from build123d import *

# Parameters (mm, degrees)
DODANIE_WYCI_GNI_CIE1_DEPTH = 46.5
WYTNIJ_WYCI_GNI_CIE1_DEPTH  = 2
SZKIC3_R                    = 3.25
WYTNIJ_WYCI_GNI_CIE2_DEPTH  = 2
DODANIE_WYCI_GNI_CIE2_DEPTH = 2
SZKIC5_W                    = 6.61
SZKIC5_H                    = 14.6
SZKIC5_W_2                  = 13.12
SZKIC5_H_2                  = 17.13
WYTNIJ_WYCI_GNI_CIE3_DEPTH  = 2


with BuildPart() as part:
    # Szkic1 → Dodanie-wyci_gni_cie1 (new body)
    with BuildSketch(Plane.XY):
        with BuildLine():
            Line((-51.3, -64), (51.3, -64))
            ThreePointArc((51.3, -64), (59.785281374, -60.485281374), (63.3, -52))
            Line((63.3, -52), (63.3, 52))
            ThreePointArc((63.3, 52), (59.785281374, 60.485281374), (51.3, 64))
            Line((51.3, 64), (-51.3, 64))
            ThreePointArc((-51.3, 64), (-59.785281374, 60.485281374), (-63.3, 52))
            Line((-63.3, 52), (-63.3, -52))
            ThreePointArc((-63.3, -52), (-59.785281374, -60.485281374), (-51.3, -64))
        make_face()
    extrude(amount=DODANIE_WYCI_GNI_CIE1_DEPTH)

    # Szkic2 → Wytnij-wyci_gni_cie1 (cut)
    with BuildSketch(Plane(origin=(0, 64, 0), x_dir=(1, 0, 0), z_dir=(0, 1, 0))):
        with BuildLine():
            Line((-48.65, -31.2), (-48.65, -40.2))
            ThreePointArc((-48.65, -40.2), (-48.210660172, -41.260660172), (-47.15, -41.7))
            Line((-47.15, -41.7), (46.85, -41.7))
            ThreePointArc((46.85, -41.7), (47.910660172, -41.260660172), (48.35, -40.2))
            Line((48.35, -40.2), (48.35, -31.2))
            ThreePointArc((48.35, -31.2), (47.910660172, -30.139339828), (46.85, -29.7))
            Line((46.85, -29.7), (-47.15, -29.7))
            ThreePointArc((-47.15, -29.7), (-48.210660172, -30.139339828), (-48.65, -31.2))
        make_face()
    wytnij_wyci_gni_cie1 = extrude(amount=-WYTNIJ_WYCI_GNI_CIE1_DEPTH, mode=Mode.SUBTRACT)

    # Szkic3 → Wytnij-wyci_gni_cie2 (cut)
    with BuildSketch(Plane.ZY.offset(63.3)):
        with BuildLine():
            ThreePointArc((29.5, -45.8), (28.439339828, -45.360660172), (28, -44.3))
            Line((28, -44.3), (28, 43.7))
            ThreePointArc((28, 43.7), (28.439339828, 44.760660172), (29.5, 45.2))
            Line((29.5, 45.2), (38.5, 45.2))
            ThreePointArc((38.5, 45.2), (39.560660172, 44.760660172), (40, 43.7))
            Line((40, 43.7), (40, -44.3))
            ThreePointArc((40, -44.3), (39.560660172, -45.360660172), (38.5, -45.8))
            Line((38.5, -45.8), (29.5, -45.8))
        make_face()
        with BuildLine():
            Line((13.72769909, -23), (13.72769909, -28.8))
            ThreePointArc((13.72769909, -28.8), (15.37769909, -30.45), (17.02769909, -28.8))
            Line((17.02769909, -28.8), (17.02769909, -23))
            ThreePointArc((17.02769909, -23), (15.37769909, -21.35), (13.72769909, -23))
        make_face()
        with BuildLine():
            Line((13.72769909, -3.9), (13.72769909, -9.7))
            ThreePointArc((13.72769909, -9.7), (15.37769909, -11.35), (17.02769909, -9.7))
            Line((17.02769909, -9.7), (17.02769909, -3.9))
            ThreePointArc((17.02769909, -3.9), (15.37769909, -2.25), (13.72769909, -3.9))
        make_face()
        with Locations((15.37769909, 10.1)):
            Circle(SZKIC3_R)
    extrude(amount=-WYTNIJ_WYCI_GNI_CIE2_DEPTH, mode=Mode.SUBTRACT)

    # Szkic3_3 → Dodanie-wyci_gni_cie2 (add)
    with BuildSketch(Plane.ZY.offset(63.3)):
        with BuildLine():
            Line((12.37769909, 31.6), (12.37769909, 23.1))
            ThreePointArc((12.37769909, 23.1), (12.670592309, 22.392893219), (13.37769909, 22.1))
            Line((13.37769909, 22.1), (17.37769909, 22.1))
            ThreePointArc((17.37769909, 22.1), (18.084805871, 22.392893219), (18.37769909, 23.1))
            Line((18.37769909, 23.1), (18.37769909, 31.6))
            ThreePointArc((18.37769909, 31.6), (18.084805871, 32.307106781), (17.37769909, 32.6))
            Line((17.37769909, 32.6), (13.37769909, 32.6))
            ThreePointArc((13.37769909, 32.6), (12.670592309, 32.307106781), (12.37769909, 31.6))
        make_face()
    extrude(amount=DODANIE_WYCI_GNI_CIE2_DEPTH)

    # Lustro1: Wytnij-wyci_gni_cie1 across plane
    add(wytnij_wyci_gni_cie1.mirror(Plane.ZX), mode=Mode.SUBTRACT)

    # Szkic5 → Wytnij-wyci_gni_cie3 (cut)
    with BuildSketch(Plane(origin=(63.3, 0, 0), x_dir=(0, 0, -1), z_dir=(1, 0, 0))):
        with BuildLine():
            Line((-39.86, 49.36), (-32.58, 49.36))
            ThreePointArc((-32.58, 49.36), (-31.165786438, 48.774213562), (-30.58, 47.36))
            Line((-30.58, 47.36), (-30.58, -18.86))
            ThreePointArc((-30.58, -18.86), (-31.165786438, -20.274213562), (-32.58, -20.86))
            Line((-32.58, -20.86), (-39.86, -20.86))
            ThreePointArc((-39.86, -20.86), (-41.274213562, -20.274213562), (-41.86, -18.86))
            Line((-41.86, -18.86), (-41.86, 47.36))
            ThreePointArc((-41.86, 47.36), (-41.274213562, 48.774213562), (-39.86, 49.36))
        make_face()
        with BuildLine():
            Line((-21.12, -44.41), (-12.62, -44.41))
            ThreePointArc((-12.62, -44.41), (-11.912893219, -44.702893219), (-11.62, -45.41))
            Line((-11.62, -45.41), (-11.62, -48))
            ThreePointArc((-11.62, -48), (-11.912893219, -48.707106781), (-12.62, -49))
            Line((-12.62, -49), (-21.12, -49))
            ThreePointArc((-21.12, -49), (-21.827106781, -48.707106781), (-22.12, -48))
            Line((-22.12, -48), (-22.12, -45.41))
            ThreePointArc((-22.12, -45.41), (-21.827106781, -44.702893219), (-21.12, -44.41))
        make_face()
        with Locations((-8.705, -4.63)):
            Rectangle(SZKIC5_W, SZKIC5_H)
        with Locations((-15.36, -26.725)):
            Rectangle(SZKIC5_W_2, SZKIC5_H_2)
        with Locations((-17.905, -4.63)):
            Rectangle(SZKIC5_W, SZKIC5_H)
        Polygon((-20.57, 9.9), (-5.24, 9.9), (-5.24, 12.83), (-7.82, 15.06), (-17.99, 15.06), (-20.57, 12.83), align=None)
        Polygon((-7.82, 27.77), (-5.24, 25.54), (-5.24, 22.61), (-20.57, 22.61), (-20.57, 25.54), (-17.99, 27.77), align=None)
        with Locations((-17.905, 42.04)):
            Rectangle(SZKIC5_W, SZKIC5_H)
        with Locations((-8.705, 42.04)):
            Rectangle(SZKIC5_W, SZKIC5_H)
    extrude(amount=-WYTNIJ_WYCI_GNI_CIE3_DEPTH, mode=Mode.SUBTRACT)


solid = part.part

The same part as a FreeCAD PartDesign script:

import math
import FreeCAD as App
import Part
import Sketcher
from FreeCAD import Vector


def add_polygon(sketch, points):
    """Adds a closed chain of lines whose ends are joined by coincident constraints."""
    first, n = sketch.GeometryCount, len(points)
    for a, b in zip(points, points[1:] + points[:1]):
        sketch.addGeometry(Part.LineSegment(App.Vector(*a, 0), App.Vector(*b, 0)), False)
    for i in range(n):
        sketch.addConstraint(Sketcher.Constraint("Coincident", first + i, 2, first + (i + 1) % n, 1))

doc = App.newDocument("Part")
body = doc.addObject("PartDesign::Body", "Body")

sketch1 = body.newObject("Sketcher::SketchObject", "Sketch")
sketch1.AttachmentSupport = (doc.getObject("XY_Plane"), [""])
sketch1.MapMode = "FlatFace"
sketch1.addGeometry([
    Part.LineSegment(Vector(-51, -64, 0), Vector(51, -64, 0)),
    Part.ArcOfCircle(Part.Circle(Vector(51, -52, 0), Vector(0, 0, 1), 12), math.radians(-90), math.radians(0)),
    Part.LineSegment(Vector(63, -52, 0), Vector(63, 52, 0)),
    Part.ArcOfCircle(Part.Circle(Vector(51, 52, 0), Vector(0, 0, 1), 12), math.radians(0), math.radians(90)),
    Part.LineSegment(Vector(51, 64, 0), Vector(-51, 64, 0)),
    Part.ArcOfCircle(Part.Circle(Vector(-51, 52, 0), Vector(0, 0, 1), 12), math.radians(90), math.radians(180)),
    Part.LineSegment(Vector(-63, 52, 0), Vector(-63, -52, 0)),
    Part.ArcOfCircle(Part.Circle(Vector(-51, -52, 0), Vector(0, 0, 1), 12), math.radians(-180), math.radians(-90)),
], False)
sketch1.addConstraint([
    Sketcher.Constraint("Tangent", 0, 2, 1, 1),
    Sketcher.Constraint("Tangent", 1, 2, 2, 1),
    Sketcher.Constraint("Tangent", 2, 2, 3, 1),
    Sketcher.Constraint("Tangent", 3, 2, 4, 1),
    Sketcher.Constraint("Tangent", 4, 2, 5, 1),
    Sketcher.Constraint("Tangent", 5, 2, 6, 1),
    Sketcher.Constraint("Tangent", 6, 2, 7, 1),
    Sketcher.Constraint("Tangent", 7, 2, 0, 1),
    Sketcher.Constraint("Horizontal", 0),
    Sketcher.Constraint("Vertical", 2),
    Sketcher.Constraint("Horizontal", 4),
    Sketcher.Constraint("Vertical", 6),
    Sketcher.Constraint("Equal", 1, 3),
    Sketcher.Constraint("Equal", 3, 5),
    Sketcher.Constraint("Equal", 5, 7),
    Sketcher.Constraint("Symmetric", 1, 3, 5, 3, -1, 1),
    Sketcher.Constraint("Radius", 1, 12.0),
    Sketcher.Constraint("DistanceY", 2, 1, 2, 2, 104.0),
    Sketcher.Constraint("DistanceX", 0, 1, 0, 2, 102.6),
])
pad1 = body.newObject("PartDesign::Pad", "Pad")
pad1.Profile = sketch1
pad1.Length = 46.5

sketch2 = body.newObject("Sketcher::SketchObject", "Sketch001")
sketch2.AttachmentSupport = (doc.getObject("XZ_Plane"), [""])
sketch2.MapMode = "FlatFace"
sketch2.AttachmentOffset = App.Placement(Vector(0, 0, -64), App.Rotation())
sketch2.addGeometry([
    Part.LineSegment(Vector(-48.6, 31.2, 0), Vector(-48.6, 40.2, 0)),
    Part.ArcOfCircle(Part.Circle(Vector(-47.2, 40.2, 0), Vector(0, 0, 1), 1.5), math.radians(90), math.radians(180)),
    Part.LineSegment(Vector(-47.1, 41.7, 0), Vector(46.9, 41.7, 0)),
    Part.ArcOfCircle(Part.Circle(Vector(46.9, 40.2, 0), Vector(0, 0, 1), 1.5), math.radians(0), math.radians(90)),
    Part.LineSegment(Vector(48.4, 40.2, 0), Vector(48.4, 31.2, 0)),
    Part.ArcOfCircle(Part.Circle(Vector(46.9, 31.2, 0), Vector(0, 0, 1), 1.5), math.radians(-90), math.radians(0)),
    Part.LineSegment(Vector(46.9, 29.7, 0), Vector(-47.1, 29.7, 0)),
    Part.ArcOfCircle(Part.Circle(Vector(-47.2, 31.2, 0), Vector(0, 0, 1), 1.5), math.radians(180), math.radians(270)),
], False)
sketch2.addConstraint([
    Sketcher.Constraint("Tangent", 0, 2, 1, 2),
    Sketcher.Constraint("Tangent", 1, 1, 2, 1),
    Sketcher.Constraint("Tangent", 2, 2, 3, 2),
    Sketcher.Constraint("Tangent", 3, 1, 4, 1),
    Sketcher.Constraint("Tangent", 4, 2, 5, 2),
    Sketcher.Constraint("Tangent", 5, 1, 6, 1),
    Sketcher.Constraint("Tangent", 6, 2, 7, 2),
    Sketcher.Constraint("Tangent", 7, 1, 0, 1),
    Sketcher.Constraint("Vertical", 0),
    Sketcher.Constraint("Horizontal", 2),
    Sketcher.Constraint("Vertical", 4),
    Sketcher.Constraint("Horizontal", 6),
    Sketcher.Constraint("Equal", 1, 3),
    Sketcher.Constraint("Equal", 3, 5),
    Sketcher.Constraint("Equal", 5, 7),
    Sketcher.Constraint("Radius", 1, 1.5),
    Sketcher.Constraint("DistanceX", 2, 1, 2, 2, 94.0),
    Sketcher.Constraint("DistanceY", 0, 1, 0, 2, 9.0),
    Sketcher.Constraint("DistanceY", -1, 1, 1, 3, 40.2),
    Sketcher.Constraint("DistanceX", 1, 3, -1, 1, 47.15),
])
pocket1 = body.newObject("PartDesign::Pocket", "Pocket")
pocket1.Profile = sketch2
pocket1.Length = 2
pocket1.Reversed = True

sketch3 = body.newObject("Sketcher::SketchObject", "Sketch002")
sketch3.AttachmentSupport = (doc.getObject("YZ_Plane"), [""])
sketch3.MapMode = "FlatFace"
sketch3.AttachmentOffset = App.Placement(Vector(0, 0, -63.3), App.Rotation())
sketch3.addGeometry([
    Part.ArcOfCircle(Part.Circle(Vector(-44.3, 29.5, 0), Vector(0, 0, 1), 1.5), math.radians(180), math.radians(270)),
    Part.LineSegment(Vector(-45.8, 29.5, 0), Vector(-45.8, 38.5, 0)),
    Part.ArcOfCircle(Part.Circle(Vector(-44.3, 38.5, 0), Vector(0, 0, 1), 1.5), math.radians(90), math.radians(180)),
    Part.LineSegment(Vector(-44.3, 40, 0), Vector(43.7, 40, 0)),
    Part.ArcOfCircle(Part.Circle(Vector(43.7, 38.5, 0), Vector(0, 0, 1), 1.5), math.radians(0), math.radians(90)),
    Part.LineSegment(Vector(45.2, 38.5, 0), Vector(45.2, 29.5, 0)),
    Part.ArcOfCircle(Part.Circle(Vector(43.7, 29.5, 0), Vector(0, 0, 1), 1.5), math.radians(-90), math.radians(0)),
    Part.LineSegment(Vector(43.7, 28, 0), Vector(-44.3, 28, 0)),
    Part.LineSegment(Vector(-23, 13.7, 0), Vector(-28.8, 13.7, 0)),
    Part.ArcOfCircle(Part.Circle(Vector(-28.8, 15.4, 0), Vector(0, 0, 1), 1.6), math.radians(90), math.radians(270)),
    Part.LineSegment(Vector(-28.8, 17, 0), Vector(-23, 17, 0)),
    Part.ArcOfCircle(Part.Circle(Vector(-23, 15.4, 0), Vector(0, 0, 1), 1.6), math.radians(-90), math.radians(90)),
    Part.LineSegment(Vector(-3.9, 13.7, 0), Vector(-9.7, 13.7, 0)),
    Part.ArcOfCircle(Part.Circle(Vector(-9.7, 15.4, 0), Vector(0, 0, 1), 1.6), math.radians(90), math.radians(270)),
    Part.LineSegment(Vector(-9.7, 17, 0), Vector(-3.9, 17, 0)),
    Part.ArcOfCircle(Part.Circle(Vector(-3.9, 15.4, 0), Vector(0, 0, 1), 1.6), math.radians(-90), math.radians(90)),
    Part.Circle(Vector(10.1, 15.4, 0), Vector(0, 0, 1), 3.2),
], False)
sketch3.addConstraint([
    Sketcher.Constraint("Tangent", 0, 1, 1, 1),
    Sketcher.Constraint("Tangent", 1, 2, 2, 2),
    Sketcher.Constraint("Tangent", 2, 1, 3, 1),
    Sketcher.Constraint("Tangent", 3, 2, 4, 2),
    Sketcher.Constraint("Tangent", 4, 1, 5, 1),
    Sketcher.Constraint("Tangent", 5, 2, 6, 2),
    Sketcher.Constraint("Tangent", 6, 1, 7, 1),
    Sketcher.Constraint("Tangent", 7, 2, 0, 2),
    Sketcher.Constraint("Tangent", 8, 2, 9, 2),
    Sketcher.Constraint("Tangent", 9, 1, 10, 1),
    Sketcher.Constraint("Tangent", 10, 2, 11, 2),
    Sketcher.Constraint("Tangent", 11, 1, 8, 1),
    Sketcher.Constraint("Tangent", 12, 2, 13, 2),
    Sketcher.Constraint("Tangent", 13, 1, 14, 1),
    Sketcher.Constraint("Tangent", 14, 2, 15, 2),
    Sketcher.Constraint("Tangent", 15, 1, 12, 1),
    Sketcher.Constraint("Vertical", 1),
    Sketcher.Constraint("Horizontal", 3),
    Sketcher.Constraint("Vertical", 5),
    Sketcher.Constraint("Horizontal", 7),
    Sketcher.Constraint("Horizontal", 8),
    Sketcher.Constraint("Horizontal", 10),
    Sketcher.Constraint("Horizontal", 12),
    Sketcher.Constraint("Horizontal", 14),
    Sketcher.Constraint("Equal", 0, 2),
    Sketcher.Constraint("Equal", 2, 4),
    Sketcher.Constraint("Equal", 4, 6),
    Sketcher.Constraint("Equal", 11, 13),
    Sketcher.Constraint("Horizontal", 11, 3, 13, 3),
    Sketcher.Constraint("Horizontal", 15, 3, 16, 3),
    Sketcher.Constraint("Equal", 10, 12),
    Sketcher.Constraint("Diameter", 16, 6.5),
    Sketcher.Constraint("Radius", 0, 1.5),
    Sketcher.Constraint("DistanceX", 3, 1, 3, 2, 88.0),
    Sketcher.Constraint("DistanceY", 1, 1, 1, 2, 9.0),
    Sketcher.Constraint("Radius", 9, 1.65),
    Sketcher.Constraint("DistanceX", 8, 2, 8, 1, 5.8),
    Sketcher.Constraint("DistanceX", 11, 3, -1, 1, 23.0),
    Sketcher.Constraint("DistanceY", -1, 1, 2, 1, 40.0),
    Sketcher.Constraint("DistanceX", 15, 3, 16, 3, 14.0),
    Sketcher.Constraint("DistanceX", 0, 1, 9, 3, 17.0),
    Sketcher.Constraint("DistanceX", 13, 3, -1, 1, 9.7),
    Sketcher.Constraint("DistanceY", -1, 1, 9, 3, 15.377699),
])
pocket2 = body.newObject("PartDesign::Pocket", "Pocket001")
pocket2.Profile = sketch3
pocket2.Length = 2
pocket2.Reversed = True

sketch4 = body.newObject("Sketcher::SketchObject", "Sketch003")
sketch4.AttachmentSupport = (doc.getObject("YZ_Plane"), [""])
sketch4.MapMode = "FlatFace"
sketch4.AttachmentOffset = App.Placement(Vector(0, 0, -63.3), App.Rotation())
sketch4.addGeometry([
    Part.LineSegment(Vector(31.6, 12.4, 0), Vector(23.1, 12.4, 0)),
    Part.ArcOfCircle(Part.Circle(Vector(23.1, 13.4, 0), Vector(0, 0, 1), 1), math.radians(-180), math.radians(-90)),
    Part.LineSegment(Vector(22.1, 13.4, 0), Vector(22.1, 17.4, 0)),
    Part.ArcOfCircle(Part.Circle(Vector(23.1, 17.4, 0), Vector(0, 0, 1), 1), math.radians(90), math.radians(180)),
    Part.LineSegment(Vector(23.1, 18.4, 0), Vector(31.6, 18.4, 0)),
    Part.ArcOfCircle(Part.Circle(Vector(31.6, 17.4, 0), Vector(0, 0, 1), 1), math.radians(0), math.radians(90)),
    Part.LineSegment(Vector(32.6, 17.4, 0), Vector(32.6, 13.4, 0)),
    Part.ArcOfCircle(Part.Circle(Vector(31.6, 13.4, 0), Vector(0, 0, 1), 1), math.radians(-90), math.radians(0)),
], False)
sketch4.addConstraint([
    Sketcher.Constraint("Tangent", 0, 2, 1, 2),
    Sketcher.Constraint("Tangent", 1, 1, 2, 1),
    Sketcher.Constraint("Tangent", 2, 2, 3, 2),
    Sketcher.Constraint("Tangent", 3, 1, 4, 1),
    Sketcher.Constraint("Tangent", 4, 2, 5, 2),
    Sketcher.Constraint("Tangent", 5, 1, 6, 1),
    Sketcher.Constraint("Tangent", 6, 2, 7, 2),
    Sketcher.Constraint("Tangent", 7, 1, 0, 1),
    Sketcher.Constraint("Horizontal", 0),
    Sketcher.Constraint("Vertical", 2),
    Sketcher.Constraint("Horizontal", 4),
    Sketcher.Constraint("Vertical", 6),
    Sketcher.Constraint("Equal", 1, 3),
    Sketcher.Constraint("Equal", 3, 5),
    Sketcher.Constraint("Equal", 5, 7),
    Sketcher.Constraint("Radius", 1, 1.0),
    Sketcher.Constraint("DistanceY", 2, 1, 2, 2, 4.0),
    Sketcher.Constraint("DistanceX", 0, 2, 0, 1, 8.5),
    Sketcher.Constraint("DistanceX", -1, 1, 1, 3, 23.1),
    Sketcher.Constraint("DistanceY", -1, 1, 1, 3, 13.377699),
])
pad2 = body.newObject("PartDesign::Pad", "Pad001")
pad2.Profile = sketch4
pad2.Length = 2
pad2.Reversed = True
doc.recompute()

mirrored = body.newObject("PartDesign::Mirrored", "Mirrored")
mirrored.Originals = [pocket1]
mirrored.MirrorPlane = (doc.getObject("XZ_Plane"), [""])
body.Tip = mirrored

sketch5 = body.newObject("Sketcher::SketchObject", "Sketch004")
sketch5.AttachmentSupport = (doc.getObject("YZ_Plane"), [""])
sketch5.MapMode = "FlatFace"
sketch5.AttachmentOffset = App.Placement(Vector(0, 0, 63.3), App.Rotation())
sketch5.addGeometry(Part.LineSegment(Vector(49.4, 32.6, 0), Vector(49.4, 39.9, 0)), False)
sketch5.addGeometry(Part.ArcOfCircle(Part.Circle(Vector(47.4, 39.9, 0), Vector(0, 0, 1), 2), math.radians(0), math.radians(90)), False)
sketch5.addGeometry(Part.LineSegment(Vector(47.4, 41.9, 0), Vector(-18.9, 41.9, 0)), False)
sketch5.addGeometry(Part.ArcOfCircle(Part.Circle(Vector(-18.9, 39.9, 0), Vector(0, 0, 1), 2), math.radians(90), math.radians(180)), False)
sketch5.addGeometry(Part.LineSegment(Vector(-20.9, 39.9, 0), Vector(-20.9, 32.6, 0)), False)
sketch5.addGeometry(Part.ArcOfCircle(Part.Circle(Vector(-18.9, 32.6, 0), Vector(0, 0, 1), 2), math.radians(-180), math.radians(-90)), False)
sketch5.addGeometry(Part.LineSegment(Vector(-18.9, 30.6, 0), Vector(47.4, 30.6, 0)), False)
sketch5.addGeometry(Part.ArcOfCircle(Part.Circle(Vector(47.4, 32.6, 0), Vector(0, 0, 1), 2), math.radians(-90), math.radians(0)), False)
sketch5.addGeometry(Part.LineSegment(Vector(-44.4, 12.6, 0), Vector(-44.4, 21.1, 0)), False)
sketch5.addGeometry(Part.ArcOfCircle(Part.Circle(Vector(-45.4, 21.1, 0), Vector(0, 0, 1), 1), math.radians(0), math.radians(90)), False)
sketch5.addGeometry(Part.LineSegment(Vector(-45.4, 22.1, 0), Vector(-48, 22.1, 0)), False)
sketch5.addGeometry(Part.ArcOfCircle(Part.Circle(Vector(-48, 21.1, 0), Vector(0, 0, 1), 1), math.radians(90), math.radians(180)), False)
sketch5.addGeometry(Part.LineSegment(Vector(-49, 21.1, 0), Vector(-49, 12.6, 0)), False)
sketch5.addGeometry(Part.ArcOfCircle(Part.Circle(Vector(-48, 12.6, 0), Vector(0, 0, 1), 1), math.radians(-180), math.radians(-90)), False)
sketch5.addGeometry(Part.LineSegment(Vector(-48, 11.6, 0), Vector(-45.4, 11.6, 0)), False)
sketch5.addGeometry(Part.ArcOfCircle(Part.Circle(Vector(-45.4, 12.6, 0), Vector(0, 0, 1), 1), math.radians(-90), math.radians(0)), False)
add_polygon(sketch5, [(2.7, 12), (-11.9, 12), (-11.9, 5.4), (2.7, 5.4)])
add_polygon(sketch5, [(-18.2, 21.9), (-35.3, 21.9), (-35.3, 8.8), (-18.2, 8.8)])
add_polygon(sketch5, [(2.7, 21.2), (-11.9, 21.2), (-11.9, 14.6), (2.7, 14.6)])
add_polygon(sketch5, [(9.9, 20.6), (9.9, 5.2), (12.8, 5.2), (15.1, 7.8), (15.1, 18), (12.8, 20.6)])
add_polygon(sketch5, [(25.5, 5.2), (27.8, 7.8), (27.8, 18), (25.5, 20.6), (22.6, 20.6), (22.6, 5.2)])
add_polygon(sketch5, [(49.3, 21.2), (34.7, 21.2), (34.7, 14.6), (49.3, 14.6)])
add_polygon(sketch5, [(49.3, 12), (34.7, 12), (34.7, 5.4), (49.3, 5.4)])
sketch5.addConstraint([
    Sketcher.Constraint("Tangent", 0, 2, 1, 1),
    Sketcher.Constraint("Tangent", 1, 2, 2, 1),
    Sketcher.Constraint("Tangent", 2, 2, 3, 1),
    Sketcher.Constraint("Tangent", 3, 2, 4, 1),
    Sketcher.Constraint("Tangent", 4, 2, 5, 1),
    Sketcher.Constraint("Tangent", 5, 2, 6, 1),
    Sketcher.Constraint("Tangent", 6, 2, 7, 1),
    Sketcher.Constraint("Tangent", 7, 2, 0, 1),
    Sketcher.Constraint("Tangent", 8, 2, 9, 1),
    Sketcher.Constraint("Tangent", 9, 2, 10, 1),
    Sketcher.Constraint("Tangent", 10, 2, 11, 1),
    Sketcher.Constraint("Tangent", 11, 2, 12, 1),
    Sketcher.Constraint("Tangent", 12, 2, 13, 1),
    Sketcher.Constraint("Tangent", 13, 2, 14, 1),
    Sketcher.Constraint("Tangent", 14, 2, 15, 1),
    Sketcher.Constraint("Tangent", 15, 2, 8, 1),
    Sketcher.Constraint("Vertical", 0),
    Sketcher.Constraint("Horizontal", 2),
    Sketcher.Constraint("Vertical", 4),
    Sketcher.Constraint("Horizontal", 6),
    Sketcher.Constraint("Vertical", 8),
    Sketcher.Constraint("Horizontal", 10),
    Sketcher.Constraint("Vertical", 12),
    Sketcher.Constraint("Horizontal", 14),
    Sketcher.Constraint("Horizontal", 16),
    Sketcher.Constraint("Vertical", 17),
    Sketcher.Constraint("Horizontal", 18),
    Sketcher.Constraint("Vertical", 19),
    Sketcher.Constraint("Horizontal", 20),
    Sketcher.Constraint("Vertical", 21),
    Sketcher.Constraint("Horizontal", 22),
    Sketcher.Constraint("Vertical", 23),
    Sketcher.Constraint("Horizontal", 24),
    Sketcher.Constraint("Vertical", 25),
    Sketcher.Constraint("Horizontal", 26),
    Sketcher.Constraint("Vertical", 27),
    Sketcher.Constraint("Vertical", 28),
    Sketcher.Constraint("Horizontal", 29),
    Sketcher.Constraint("Vertical", 31),
    Sketcher.Constraint("Horizontal", 33),
    Sketcher.Constraint("Vertical", 35),
    Sketcher.Constraint("Horizontal", 37),
    Sketcher.Constraint("Vertical", 38),
    Sketcher.Constraint("Horizontal", 39),
    Sketcher.Constraint("Horizontal", 40),
    Sketcher.Constraint("Vertical", 41),
    Sketcher.Constraint("Horizontal", 42),
    Sketcher.Constraint("Vertical", 43),
    Sketcher.Constraint("Horizontal", 44),
    Sketcher.Constraint("Vertical", 45),
    Sketcher.Constraint("Horizontal", 46),
    Sketcher.Constraint("Vertical", 47),
    Sketcher.Constraint("Equal", 1, 3),
    Sketcher.Constraint("Equal", 3, 5),
    Sketcher.Constraint("Equal", 5, 7),
    Sketcher.Constraint("Equal", 9, 11),
    Sketcher.Constraint("Equal", 11, 13),
    Sketcher.Constraint("Equal", 13, 15),
    Sketcher.Constraint("Parallel", 30, 34),
    Sketcher.Constraint("Parallel", 32, 36),
    Sketcher.Constraint("Horizontal", 30, 2, 34, 2),
    Sketcher.Constraint("Horizontal", 31, 2, 35, 2),
    Sketcher.Constraint("Horizontal", 33, 2, 36, 2),
    Sketcher.Constraint("Horizontal", 29, 2, 38, 2),
    Sketcher.Constraint("Horizontal", 27, 2, 40, 2),
    Sketcher.Constraint("Horizontal", 26, 2, 41, 2),
    Sketcher.Constraint("Horizontal", 19, 2, 44, 2),
    Sketcher.Constraint("Horizontal", 18, 2, 45, 2),
    Sketcher.Constraint("Vertical", 17, 2, 24, 2),
    Sketcher.Constraint("Vertical", 19, 2, 26, 2),
    Sketcher.Constraint("Vertical", 29, 2, 32, 2),
    Sketcher.Constraint("Vertical", 41, 2, 44, 2),
    Sketcher.Constraint("Vertical", 43, 2, 46, 2),
    Sketcher.Constraint("Equal", 33, 37),
    Sketcher.Constraint("Equal", 26, 40),
    Sketcher.Constraint("Equal", 19, 25),
    Sketcher.Constraint("Equal", 30, 32),
    Sketcher.Constraint("Radius", 1, 2.0),
    Sketcher.Constraint("Radius", 9, 1.0),
    Sketcher.Constraint("DistanceX", 16, 2, 16, 1, 14.6),
    Sketcher.Constraint("DistanceY", 8, 1, 8, 2, 8.5),
    Sketcher.Constraint("DistanceX", 11, 3, -1, 1, 48.0),
    Sketcher.Constraint("DistanceX", 2, 2, 2, 1, 66.22),
    Sketcher.Constraint("DistanceX", 10, 2, 10, 1, 2.59),
    Sketcher.Constraint("DistanceX", 20, 2, 20, 1, 17.13),
    Sketcher.Constraint("DistanceX", 29, 1, 29, 2, 2.93),
    Sketcher.Constraint("DistanceY", 0, 1, 0, 2, 7.28),
    Sketcher.Constraint("DistanceY", 17, 2, 17, 1, 6.61),
    Sketcher.Constraint("DistanceY", 21, 2, 21, 1, 13.12),
    Sketcher.Constraint("DistanceY", 28, 2, 28, 1, 15.33),
    Sketcher.Constraint("DistanceY", 31, 1, 31, 2, 10.17),
    Sketcher.Constraint("DistanceY", -1, 1, 17, 2, 5.4),
    Sketcher.Constraint("DistanceY", -1, 1, 21, 2, 8.8),
    Sketcher.Constraint("DistanceY", -1, 1, 25, 2, 14.6),
    Sketcher.Constraint("DistanceX", -1, 1, 28, 2, 9.9),
    Sketcher.Constraint("DistanceY", 8, 2, 20, 2, 0.8),
    Sketcher.Constraint("DistanceX", 5, 2, 23, 2, 0.7),
    Sketcher.Constraint("DistanceX", 36, 2, 40, 2, 9.2),
    Sketcher.Constraint("DistanceX", -1, 1, 1, 3, 47.36),
    Sketcher.Constraint("DistanceY", -1, 1, 1, 3, 39.86),
    Sketcher.Constraint("DistanceX", 16, 2, -1, 1, 11.93),
    Sketcher.Constraint("DistanceY", -1, 1, 28, 2, 5.24),
    Sketcher.Constraint("DistanceX", -1, 1, 30, 2, 15.06),
    Sketcher.Constraint("DistanceX", -1, 1, 34, 2, 27.77),
])
pocket3 = body.newObject("PartDesign::Pocket", "Pocket002")
pocket3.Profile = sketch5
pocket3.Length = 2

doc.recompute()
